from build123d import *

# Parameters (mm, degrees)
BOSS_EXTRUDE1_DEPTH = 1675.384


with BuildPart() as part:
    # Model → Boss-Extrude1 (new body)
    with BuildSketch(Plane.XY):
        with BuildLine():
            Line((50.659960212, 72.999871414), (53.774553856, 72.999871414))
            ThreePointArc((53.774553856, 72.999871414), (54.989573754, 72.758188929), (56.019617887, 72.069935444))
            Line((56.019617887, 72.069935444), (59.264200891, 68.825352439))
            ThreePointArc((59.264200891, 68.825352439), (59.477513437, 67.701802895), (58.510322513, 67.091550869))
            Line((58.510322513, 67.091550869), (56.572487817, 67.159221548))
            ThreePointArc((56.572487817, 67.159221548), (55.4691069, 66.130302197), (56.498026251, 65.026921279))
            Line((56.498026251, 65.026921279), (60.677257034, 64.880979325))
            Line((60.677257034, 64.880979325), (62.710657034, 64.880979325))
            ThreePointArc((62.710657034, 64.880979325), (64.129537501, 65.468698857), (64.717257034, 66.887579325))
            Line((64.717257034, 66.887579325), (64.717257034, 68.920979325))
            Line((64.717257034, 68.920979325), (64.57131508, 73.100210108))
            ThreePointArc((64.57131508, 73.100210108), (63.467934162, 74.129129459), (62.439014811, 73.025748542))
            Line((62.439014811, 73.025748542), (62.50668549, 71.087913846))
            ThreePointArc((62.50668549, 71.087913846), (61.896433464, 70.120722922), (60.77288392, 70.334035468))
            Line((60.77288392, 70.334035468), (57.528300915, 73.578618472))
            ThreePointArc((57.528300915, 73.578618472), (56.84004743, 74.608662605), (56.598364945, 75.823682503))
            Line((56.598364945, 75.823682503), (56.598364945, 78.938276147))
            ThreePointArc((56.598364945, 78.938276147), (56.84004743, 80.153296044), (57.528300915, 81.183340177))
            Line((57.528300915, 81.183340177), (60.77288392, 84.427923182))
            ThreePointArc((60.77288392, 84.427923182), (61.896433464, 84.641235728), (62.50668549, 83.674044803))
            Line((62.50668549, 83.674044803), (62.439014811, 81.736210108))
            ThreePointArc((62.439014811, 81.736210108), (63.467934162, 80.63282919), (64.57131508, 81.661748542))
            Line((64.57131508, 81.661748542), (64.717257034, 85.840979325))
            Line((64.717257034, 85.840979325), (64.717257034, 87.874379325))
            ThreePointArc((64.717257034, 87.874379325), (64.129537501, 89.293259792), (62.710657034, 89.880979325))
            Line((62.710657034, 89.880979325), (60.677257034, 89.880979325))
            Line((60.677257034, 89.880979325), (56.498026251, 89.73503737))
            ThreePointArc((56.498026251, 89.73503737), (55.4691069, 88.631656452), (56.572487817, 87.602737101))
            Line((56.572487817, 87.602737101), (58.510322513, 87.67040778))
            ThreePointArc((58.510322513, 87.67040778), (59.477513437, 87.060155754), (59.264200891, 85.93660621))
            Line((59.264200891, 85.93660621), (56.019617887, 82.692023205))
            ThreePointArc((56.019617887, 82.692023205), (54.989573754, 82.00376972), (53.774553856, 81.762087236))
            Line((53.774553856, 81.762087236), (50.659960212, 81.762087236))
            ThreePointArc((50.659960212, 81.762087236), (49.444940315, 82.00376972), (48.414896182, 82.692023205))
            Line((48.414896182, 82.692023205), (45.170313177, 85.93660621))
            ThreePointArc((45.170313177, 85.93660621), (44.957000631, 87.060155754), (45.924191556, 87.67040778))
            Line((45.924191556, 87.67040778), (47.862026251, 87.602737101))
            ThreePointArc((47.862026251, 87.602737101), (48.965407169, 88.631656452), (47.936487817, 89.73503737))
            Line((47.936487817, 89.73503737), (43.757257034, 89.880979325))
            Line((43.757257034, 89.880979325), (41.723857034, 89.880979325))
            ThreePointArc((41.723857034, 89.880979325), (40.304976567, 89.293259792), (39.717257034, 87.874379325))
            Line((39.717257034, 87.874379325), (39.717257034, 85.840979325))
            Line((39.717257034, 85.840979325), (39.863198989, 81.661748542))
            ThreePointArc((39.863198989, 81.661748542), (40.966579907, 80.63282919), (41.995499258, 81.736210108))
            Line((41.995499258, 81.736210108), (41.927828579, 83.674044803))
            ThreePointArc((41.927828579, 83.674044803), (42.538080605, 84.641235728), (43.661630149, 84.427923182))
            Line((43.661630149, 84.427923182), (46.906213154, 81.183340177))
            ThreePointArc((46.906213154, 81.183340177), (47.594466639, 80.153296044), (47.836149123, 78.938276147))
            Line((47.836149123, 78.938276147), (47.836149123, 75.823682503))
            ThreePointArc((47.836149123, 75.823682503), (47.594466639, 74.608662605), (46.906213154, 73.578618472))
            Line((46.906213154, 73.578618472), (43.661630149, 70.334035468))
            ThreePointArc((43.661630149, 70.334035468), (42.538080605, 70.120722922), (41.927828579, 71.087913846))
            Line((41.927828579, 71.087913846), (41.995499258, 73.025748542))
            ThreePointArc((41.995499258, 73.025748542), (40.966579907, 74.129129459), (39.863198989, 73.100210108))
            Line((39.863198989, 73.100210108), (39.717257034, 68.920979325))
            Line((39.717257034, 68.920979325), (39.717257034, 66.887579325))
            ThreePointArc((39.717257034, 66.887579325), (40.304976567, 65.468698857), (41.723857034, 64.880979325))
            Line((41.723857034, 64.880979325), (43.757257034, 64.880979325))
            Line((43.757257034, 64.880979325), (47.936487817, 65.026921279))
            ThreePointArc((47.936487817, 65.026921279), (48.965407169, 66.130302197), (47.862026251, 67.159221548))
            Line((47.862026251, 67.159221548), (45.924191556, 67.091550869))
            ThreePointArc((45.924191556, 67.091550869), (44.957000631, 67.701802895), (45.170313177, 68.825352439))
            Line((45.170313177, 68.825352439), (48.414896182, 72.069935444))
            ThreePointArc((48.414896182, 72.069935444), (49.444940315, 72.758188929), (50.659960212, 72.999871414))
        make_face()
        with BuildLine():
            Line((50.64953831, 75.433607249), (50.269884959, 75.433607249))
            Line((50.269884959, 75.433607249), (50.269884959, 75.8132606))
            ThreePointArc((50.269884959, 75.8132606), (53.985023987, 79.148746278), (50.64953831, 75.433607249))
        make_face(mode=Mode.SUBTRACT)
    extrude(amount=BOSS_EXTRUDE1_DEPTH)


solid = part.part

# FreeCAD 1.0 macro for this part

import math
import FreeCAD as App
import Part
import Sketcher

V = App.Vector
Q = App.Units.Quantity

doc = App.newDocument("Part")
params = doc.addObject("Spreadsheet::Sheet", "Params")
for row, (alias, value) in enumerate([
    ("sketch1_radius", "0.04 in"),
    ("sketch1_radius2", "0.125 in"),
    ("sketch1_radius3", "0.042 in"),
    ("sketch1_radius4", "0.079 in"),
    ("pad1_length", "65.96 in"),
], start=1):
    params.set(f"A{row}", alias)
    params.set(f"B{row}", "=" + value)
    params.setAlias(f"B{row}", alias)

body = doc.addObject("PartDesign::Body", "Body")

# Sketch on XY plane
sketch1 = doc.addObject("Sketcher::SketchObject", "Sketch")
body.addObject(sketch1)
sketch1.AttachmentSupport = (doc.XY_Plane, [""])
sketch1.MapMode = "FlatFace"
sketch1.addGeometry([
    Part.LineSegment(V(50.65996, 72.999871, 0), V(53.774554, 72.999871, 0)),  # 0
    Part.ArcOfCircle(Part.Circle(V(53.774554, 69.824871, 0), V(0, 0, 1), 3.175), math.radians(45), math.radians(90)),  # 1
    Part.LineSegment(V(56.019618, 72.069935, 0), V(59.264201, 68.825352, 0)),  # 2
    Part.ArcOfCircle(Part.Circle(V(58.54578, 68.106932, 0), V(0, 0, 1), 1.016), math.radians(-92), math.radians(45)),  # 3
    Part.LineSegment(V(58.510323, 67.091551, 0), V(56.572488, 67.159222, 0)),  # 4
    Part.ArcOfCircle(Part.Circle(V(56.535257, 66.093071, 0), V(0, 0, 1), 1.0668), math.radians(88), math.radians(268)),  # 5
    Part.LineSegment(V(56.498026, 65.026921, 0), V(60.677257, 64.880979, 0)),  # 6
    Part.LineSegment(V(60.677257, 64.880979, 0), V(62.710657, 64.880979, 0)),  # 7
    Part.ArcOfCircle(Part.Circle(V(62.710657, 66.887579, 0), V(0, 0, 1), 2.0066), math.radians(-90), math.radians(0)),  # 8
    Part.LineSegment(V(64.717257, 66.887579, 0), V(64.717257, 68.920979, 0)),  # 9
    Part.LineSegment(V(64.717257, 68.920979, 0), V(64.571315, 73.10021, 0)),  # 10
    Part.ArcOfCircle(Part.Circle(V(63.505165, 73.062979, 0), V(0, 0, 1), 1.0668), math.radians(2), math.radians(182)),  # 11
    Part.LineSegment(V(62.439015, 73.025749, 0), V(62.506685, 71.087914, 0)),  # 12
    Part.ArcOfCircle(Part.Circle(V(61.491304, 71.052456, 0), V(0, 0, 1), 1.016), math.radians(-135), math.radians(2)),  # 13
    Part.LineSegment(V(60.772884, 70.334035, 0), V(57.528301, 73.578618, 0)),  # 14
    Part.ArcOfCircle(Part.Circle(V(59.773365, 75.823683, 0), V(0, 0, 1), 3.175), math.radians(-180), math.radians(-135)),  # 15
    Part.LineSegment(V(56.598365, 75.823683, 0), V(56.598365, 78.938276, 0)),  # 16
    Part.ArcOfCircle(Part.Circle(V(59.773365, 78.938276, 0), V(0, 0, 1), 3.175), math.radians(135), math.radians(180)),  # 17
    Part.LineSegment(V(57.528301, 81.18334, 0), V(60.772884, 84.427923, 0)),  # 18
    Part.ArcOfCircle(Part.Circle(V(61.491304, 83.709503, 0), V(0, 0, 1), 1.016), math.radians(-2), math.radians(135)),  # 19
    Part.LineSegment(V(62.506685, 83.674045, 0), V(62.439015, 81.73621, 0)),  # 20
    Part.ArcOfCircle(Part.Circle(V(63.505165, 81.698979, 0), V(0, 0, 1), 1.0668), math.radians(178), math.radians(358)),  # 21
    Part.LineSegment(V(64.571315, 81.661749, 0), V(64.717257, 85.840979, 0)),  # 22
    Part.LineSegment(V(64.717257, 85.840979, 0), V(64.717257, 87.874379, 0)),  # 23
    Part.ArcOfCircle(Part.Circle(V(62.710657, 87.874379, 0), V(0, 0, 1), 2.0066), math.radians(0), math.radians(90)),  # 24
    Part.LineSegment(V(62.710657, 89.880979, 0), V(60.677257, 89.880979, 0)),  # 25
    Part.LineSegment(V(60.677257, 89.880979, 0), V(56.498026, 89.735037, 0)),  # 26
    Part.ArcOfCircle(Part.Circle(V(56.535257, 88.668887, 0), V(0, 0, 1), 1.0668), math.radians(92), math.radians(272)),  # 27
    Part.LineSegment(V(56.572488, 87.602737, 0), V(58.510323, 87.670408, 0)),  # 28
    Part.ArcOfCircle(Part.Circle(V(58.54578, 86.655027, 0), V(0, 0, 1), 1.016), math.radians(-45), math.radians(92)),  # 29
    Part.LineSegment(V(59.264201, 85.936606, 0), V(56.019618, 82.692023, 0)),  # 30
    Part.ArcOfCircle(Part.Circle(V(53.774554, 84.937087, 0), V(0, 0, 1), 3.175), math.radians(-90), math.radians(-45)),  # 31
    Part.LineSegment(V(53.774554, 81.762087, 0), V(50.65996, 81.762087, 0)),  # 32
    Part.ArcOfCircle(Part.Circle(V(50.65996, 84.937087, 0), V(0, 0, 1), 3.175), math.radians(-135), math.radians(-90)),  # 33
    Part.LineSegment(V(48.414896, 82.692023, 0), V(45.170313, 85.936606, 0)),  # 34
    Part.ArcOfCircle(Part.Circle(V(45.888734, 86.655027, 0), V(0, 0, 1), 1.016), math.radians(88), math.radians(225)),  # 35
    Part.LineSegment(V(45.924192, 87.670408, 0), V(47.862026, 87.602737, 0)),  # 36
    Part.ArcOfCircle(Part.Circle(V(47.899257, 88.668887, 0), V(0, 0, 1), 1.0668), math.radians(-92), math.radians(88)),  # 37
    Part.LineSegment(V(47.936488, 89.735037, 0), V(43.757257, 89.880979, 0)),  # 38
    Part.LineSegment(V(43.757257, 89.880979, 0), V(41.723857, 89.880979, 0)),  # 39
    Part.ArcOfCircle(Part.Circle(V(41.723857, 87.874379, 0), V(0, 0, 1), 2.0066), math.radians(90), math.radians(180)),  # 40
    Part.LineSegment(V(39.717257, 87.874379, 0), V(39.717257, 85.840979, 0)),  # 41
    Part.LineSegment(V(39.717257, 85.840979, 0), V(39.863199, 81.661749, 0)),  # 42
    Part.ArcOfCircle(Part.Circle(V(40.929349, 81.698979, 0), V(0, 0, 1), 1.0668), math.radians(-178), math.radians(2)),  # 43
    Part.LineSegment(V(41.995499, 81.73621, 0), V(41.927829, 83.674045, 0)),  # 44
    Part.ArcOfCircle(Part.Circle(V(42.94321, 83.709503, 0), V(0, 0, 1), 1.016), math.radians(45), math.radians(182)),  # 45
    Part.LineSegment(V(43.66163, 84.427923, 0), V(46.906213, 81.18334, 0)),  # 46
    Part.ArcOfCircle(Part.Circle(V(44.661149, 78.938276, 0), V(0, 0, 1), 3.175), math.radians(0), math.radians(45)),  # 47
    Part.LineSegment(V(47.836149, 78.938276, 0), V(47.836149, 75.823683, 0)),  # 48
    Part.ArcOfCircle(Part.Circle(V(44.661149, 75.823683, 0), V(0, 0, 1), 3.175), math.radians(-45), math.radians(0)),  # 49
    Part.LineSegment(V(46.906213, 73.578618, 0), V(43.66163, 70.334035, 0)),  # 50
    Part.ArcOfCircle(Part.Circle(V(42.94321, 71.052456, 0), V(0, 0, 1), 1.016), math.radians(178), math.radians(315)),  # 51
    Part.LineSegment(V(41.927829, 71.087914, 0), V(41.995499, 73.025749, 0)),  # 52
    Part.ArcOfCircle(Part.Circle(V(40.929349, 73.062979, 0), V(0, 0, 1), 1.0668), math.radians(-2), math.radians(178)),  # 53
    Part.LineSegment(V(39.863199, 73.10021, 0), V(39.717257, 68.920979, 0)),  # 54
    Part.LineSegment(V(39.717257, 68.920979, 0), V(39.717257, 66.887579, 0)),  # 55
    Part.ArcOfCircle(Part.Circle(V(41.723857, 66.887579, 0), V(0, 0, 1), 2.0066), math.radians(180), math.radians(270)),  # 56
    Part.LineSegment(V(41.723857, 64.880979, 0), V(43.757257, 64.880979, 0)),  # 57
    Part.LineSegment(V(43.757257, 64.880979, 0), V(47.936488, 65.026921, 0)),  # 58
    Part.ArcOfCircle(Part.Circle(V(47.899257, 66.093071, 0), V(0, 0, 1), 1.0668), math.radians(-88), math.radians(92)),  # 59
    Part.LineSegment(V(47.862026, 67.159222, 0), V(45.924192, 67.091551, 0)),  # 60
    Part.ArcOfCircle(Part.Circle(V(45.888734, 68.106932, 0), V(0, 0, 1), 1.016), math.radians(135), math.radians(272)),  # 61
    Part.LineSegment(V(45.170313, 68.825352, 0), V(48.414896, 72.069935, 0)),  # 62
    Part.ArcOfCircle(Part.Circle(V(50.65996, 69.824871, 0), V(0, 0, 1), 3.175), math.radians(90), math.radians(135)),  # 63
    Part.ArcOfCircle(Part.Circle(V(52.217257, 77.380979, 0), V(0, 0, 1), 2.5), math.radians(-128.835568), math.radians(218.835568)),  # 64
    Part.LineSegment(V(50.649538, 75.433607, 0), V(50.269885, 75.433607, 0)),  # 65
    Part.LineSegment(V(50.269885, 75.433607, 0), V(50.269885, 75.813261, 0)),  # 66
], False)
sketch1.addConstraint([
    Sketcher.Constraint("Tangent", 0, 2, 1, 2),
    Sketcher.Constraint("Tangent", 1, 1, 2, 1),
    Sketcher.Constraint("Tangent", 2, 2, 3, 2),
    Sketcher.Constraint("Tangent", 3, 1, 4, 1),
    Sketcher.Constraint("Tangent", 4, 2, 5, 1),
    Sketcher.Constraint("Tangent", 5, 2, 6, 1),
    Sketcher.Constraint("Coincident", 6, 2, 7, 1),
    Sketcher.Constraint("Tangent", 7, 2, 8, 1),
    Sketcher.Constraint("Tangent", 8, 2, 9, 1),
    Sketcher.Constraint("Coincident", 9, 2, 10, 1),
    Sketcher.Constraint("Tangent", 10, 2, 11, 1),
    Sketcher.Constraint("Tangent", 11, 2, 12, 1),
    Sketcher.Constraint("Tangent", 12, 2, 13, 2),
    Sketcher.Constraint("Tangent", 13, 1, 14, 1),
    Sketcher.Constraint("Tangent", 14, 2, 15, 2),
    Sketcher.Constraint("Tangent", 15, 1, 16, 1),
    Sketcher.Constraint("Tangent", 16, 2, 17, 2),
    Sketcher.Constraint("Tangent", 17, 1, 18, 1),
    Sketcher.Constraint("Tangent", 18, 2, 19, 2),
    Sketcher.Constraint("Tangent", 19, 1, 20, 1),
    Sketcher.Constraint("Tangent", 20, 2, 21, 1),
    Sketcher.Constraint("Tangent", 21, 2, 22, 1),
    Sketcher.Constraint("Coincident", 22, 2, 23, 1),
    Sketcher.Constraint("Tangent", 23, 2, 24, 1),
    Sketcher.Constraint("Tangent", 24, 2, 25, 1),
    Sketcher.Constraint("Coincident", 25, 2, 26, 1),
    Sketcher.Constraint("Tangent", 26, 2, 27, 1),
    Sketcher.Constraint("Tangent", 27, 2, 28, 1),
    Sketcher.Constraint("Tangent", 28, 2, 29, 2),
    Sketcher.Constraint("Tangent", 29, 1, 30, 1),
    Sketcher.Constraint("Tangent", 30, 2, 31, 2),
    Sketcher.Constraint("Tangent", 31, 1, 32, 1),
    Sketcher.Constraint("Tangent", 32, 2, 33, 2),
    Sketcher.Constraint("Tangent", 33, 1, 34, 1),
    Sketcher.Constraint("Tangent", 34, 2, 35, 2),
    Sketcher.Constraint("Tangent", 35, 1, 36, 1),
    Sketcher.Constraint("Tangent", 36, 2, 37, 1),
    Sketcher.Constraint("Tangent", 37, 2, 38, 1),
    Sketcher.Constraint("Coincident", 38, 2, 39, 1),
    Sketcher.Constraint("Tangent", 39, 2, 40, 1),
    Sketcher.Constraint("Tangent", 40, 2, 41, 1),
    Sketcher.Constraint("Coincident", 41, 2, 42, 1),
    Sketcher.Constraint("Tangent", 42, 2, 43, 1),
    Sketcher.Constraint("Tangent", 43, 2, 44, 1),
    Sketcher.Constraint("Tangent", 44, 2, 45, 2),
    Sketcher.Constraint("Tangent", 45, 1, 46, 1),
    Sketcher.Constraint("Tangent", 46, 2, 47, 2),
    Sketcher.Constraint("Tangent", 47, 1, 48, 1),
    Sketcher.Constraint("Tangent", 48, 2, 49, 2),
    Sketcher.Constraint("Tangent", 49, 1, 50, 1),
    Sketcher.Constraint("Tangent", 50, 2, 51, 2),
    Sketcher.Constraint("Tangent", 51, 1, 52, 1),
    Sketcher.Constraint("Tangent", 52, 2, 53, 1),
    Sketcher.Constraint("Tangent", 53, 2, 54, 1),
    Sketcher.Constraint("Coincident", 54, 2, 55, 1),
    Sketcher.Constraint("Tangent", 55, 2, 56, 1),
    Sketcher.Constraint("Tangent", 56, 2, 57, 1),
    Sketcher.Constraint("Coincident", 57, 2, 58, 1),
    Sketcher.Constraint("Tangent", 58, 2, 59, 1),
    Sketcher.Constraint("Tangent", 59, 2, 60, 1),
    Sketcher.Constraint("Tangent", 60, 2, 61, 2),
    Sketcher.Constraint("Tangent", 61, 1, 62, 1),
    Sketcher.Constraint("Tangent", 62, 2, 63, 2),
    Sketcher.Constraint("Tangent", 63, 1, 0, 1),
    Sketcher.Constraint("Coincident", 64, 1, 65, 1),
    Sketcher.Constraint("Coincident", 65, 2, 66, 1),
    Sketcher.Constraint("Coincident", 66, 2, 64, 2),
    Sketcher.Constraint("Horizontal", 0),
    Sketcher.Constraint("Horizontal", 7),
    Sketcher.Constraint("Vertical", 9),
    Sketcher.Constraint("Vertical", 16),
    Sketcher.Constraint("Vertical", 23),
    Sketcher.Constraint("Horizontal", 25),
    Sketcher.Constraint("Horizontal", 32),
    Sketcher.Constraint("Horizontal", 39),
    Sketcher.Constraint("Vertical", 41),
    Sketcher.Constraint("Vertical", 48),
    Sketcher.Constraint("Vertical", 55),
    Sketcher.Constraint("Horizontal", 57),
    Sketcher.Constraint("Horizontal", 65),
    Sketcher.Constraint("Vertical", 66),
    Sketcher.Constraint("Equal", 5, 11),
    Sketcher.Constraint("Equal", 3, 13),
    Sketcher.Constraint("Equal", 1, 15),
    Sketcher.Constraint("Equal", 15, 17),
    Sketcher.Constraint("Equal", 13, 19),
    Sketcher.Constraint("Equal", 11, 21),
    Sketcher.Constraint("Equal", 8, 24),
    Sketcher.Constraint("Equal", 21, 27),
    Sketcher.Constraint("Equal", 19, 29),
    Sketcher.Constraint("Equal", 17, 31),
    Sketcher.Constraint("Equal", 31, 33),
    Sketcher.Constraint("Equal", 29, 35),
    Sketcher.Constraint("Equal", 27, 37),
    Sketcher.Constraint("Equal", 24, 40),
    Sketcher.Constraint("Equal", 37, 43),
    Sketcher.Constraint("Equal", 35, 45),
    Sketcher.Constraint("Equal", 33, 47),
    Sketcher.Constraint("Equal", 47, 49),
    Sketcher.Constraint("Equal", 45, 51),
    Sketcher.Constraint("Equal", 43, 53),
    Sketcher.Constraint("Equal", 40, 56),
    Sketcher.Constraint("Equal", 53, 59),
    Sketcher.Constraint("Equal", 51, 61),
    Sketcher.Constraint("Equal", 49, 63),
    Sketcher.Constraint("Parallel", 4, 6),
    Sketcher.Constraint("Parallel", 10, 12),
    Sketcher.Constraint("Parallel", 2, 14),
    Sketcher.Constraint("Perpendicular", 14, 18),
    Sketcher.Constraint("Perpendicular", 6, 20),
    Sketcher.Constraint("Parallel", 20, 22),
    Sketcher.Constraint("Perpendicular", 12, 26),
    Sketcher.Constraint("Parallel", 26, 28),
    Sketcher.Constraint("Parallel", 18, 30),
    Sketcher.Constraint("Perpendicular", 30, 34),
    Sketcher.Constraint("Perpendicular", 22, 36),
    Sketcher.Constraint("Parallel", 36, 38),
    Sketcher.Constraint("Perpendicular", 28, 42),
    Sketcher.Constraint("Parallel", 42, 44),
    Sketcher.Constraint("Parallel", 34, 46),
    Sketcher.Constraint("Perpendicular", 46, 50),
    Sketcher.Constraint("Perpendicular", 38, 52),
    Sketcher.Constraint("Parallel", 52, 54),
    Sketcher.Constraint("Perpendicular", 44, 58),
    Sketcher.Constraint("Parallel", 58, 60),
    Sketcher.Constraint("Parallel", 50, 62),
    Sketcher.Constraint("Horizontal", 29, 3, 35, 3),
    Sketcher.Constraint("Horizontal", 27, 3, 37, 3),
    Sketcher.Constraint("Horizontal", 24, 3, 40, 3),
    Sketcher.Constraint("Horizontal", 21, 3, 43, 3),
    Sketcher.Constraint("Horizontal", 19, 3, 45, 3),
    Sketcher.Constraint("Horizontal", 17, 3, 47, 3),
    Sketcher.Constraint("Horizontal", 15, 3, 49, 3),
    Sketcher.Constraint("Horizontal", 13, 3, 51, 3),
    Sketcher.Constraint("Horizontal", 11, 3, 53, 3),
    Sketcher.Constraint("Horizontal", 8, 3, 56, 3),
    Sketcher.Constraint("Horizontal", 5, 3, 59, 3),
    Sketcher.Constraint("Horizontal", 3, 3, 61, 3),
    Sketcher.Constraint("Horizontal", 30, 2, 33, 1),
    Sketcher.Constraint("Horizontal", 22, 2, 41, 2),
    Sketcher.Constraint("Horizontal", 21, 2, 42, 2),
    Sketcher.Constraint("Horizontal", 9, 2, 54, 2),
    Sketcher.Constraint("Vertical", 13, 3, 19, 3),
    Sketcher.Constraint("Vertical", 11, 3, 21, 3),
    Sketcher.Constraint("Vertical", 8, 3, 24, 3),
    Sketcher.Constraint("Vertical", 5, 3, 27, 3),
    Sketcher.Constraint("Vertical", 3, 3, 29, 3),
    Sketcher.Constraint("Vertical", 1, 3, 31, 3),
    Sketcher.Constraint("Vertical", 37, 3, 59, 3),
    Sketcher.Constraint("Vertical", 6, 2, 25, 2),
    Sketcher.Constraint("Equal", 25, 39),
    Sketcher.Constraint("Equal", 57, 9),
    Sketcher.Constraint("Equal", 32, 16),
    Sketcher.Constraint("Equal", 9, 23),
    Sketcher.Constraint("Equal", 65, 66),
    Sketcher.Constraint("Equal", 6, 10),
    Sketcher.Constraint("Equal", 4, 12),
    Sketcher.Constraint("Equal", 2, 14),
    Sketcher.Constraint("Radius", 3, Q("0.04 in")),
    Sketcher.Constraint("Angle", 4, Q("178 deg")),
    Sketcher.Constraint("Radius", 1, Q("0.125 in")),
    Sketcher.Constraint("Radius", 5, Q("0.042 in")),
    Sketcher.Constraint("Radius", 8, Q("0.079 in")),
    Sketcher.Constraint("Radius", 64, 2.5),
    Sketcher.Constraint("DistanceX", 7, 1, 7, 2, 2.0334),
    Sketcher.Constraint("DistanceX", -1, 1, 2, 2, 59.264201),
    Sketcher.Constraint("DistanceX", -1, 1, 14, 2, 57.528301),
    Sketcher.Constraint("DistanceX", -1, 1, 42, 2, 39.863199),
    Sketcher.Constraint("Distance", 6, 4.181778),
    Sketcher.Constraint("DistanceX", 0, 1, 0, 2, 3.114594),
    Sketcher.Constraint("DistanceX", 65, 2, 65, 1, 0.379653),
    Sketcher.Constraint("DistanceY", -1, 1, 1, 3, 69.824871),
    Sketcher.Constraint("DistanceY", -1, 1, 64, 3, 77.380979),
    Sketcher.Constraint("DistanceX", -1, 1, 64, 1, 50.649538),
])
sketch1.setExpression("Constraints[158]", "Params.sketch1_radius")
sketch1.setExpression("Constraints[160]", "Params.sketch1_radius2")
sketch1.setExpression("Constraints[161]", "Params.sketch1_radius3")
sketch1.setExpression("Constraints[162]", "Params.sketch1_radius4")
pad1 = doc.addObject("PartDesign::Pad", "Pad")
body.addObject(pad1)
pad1.Profile = sketch1
pad1.setExpression("Length", "Params.pad1_length")

doc.recompute()
